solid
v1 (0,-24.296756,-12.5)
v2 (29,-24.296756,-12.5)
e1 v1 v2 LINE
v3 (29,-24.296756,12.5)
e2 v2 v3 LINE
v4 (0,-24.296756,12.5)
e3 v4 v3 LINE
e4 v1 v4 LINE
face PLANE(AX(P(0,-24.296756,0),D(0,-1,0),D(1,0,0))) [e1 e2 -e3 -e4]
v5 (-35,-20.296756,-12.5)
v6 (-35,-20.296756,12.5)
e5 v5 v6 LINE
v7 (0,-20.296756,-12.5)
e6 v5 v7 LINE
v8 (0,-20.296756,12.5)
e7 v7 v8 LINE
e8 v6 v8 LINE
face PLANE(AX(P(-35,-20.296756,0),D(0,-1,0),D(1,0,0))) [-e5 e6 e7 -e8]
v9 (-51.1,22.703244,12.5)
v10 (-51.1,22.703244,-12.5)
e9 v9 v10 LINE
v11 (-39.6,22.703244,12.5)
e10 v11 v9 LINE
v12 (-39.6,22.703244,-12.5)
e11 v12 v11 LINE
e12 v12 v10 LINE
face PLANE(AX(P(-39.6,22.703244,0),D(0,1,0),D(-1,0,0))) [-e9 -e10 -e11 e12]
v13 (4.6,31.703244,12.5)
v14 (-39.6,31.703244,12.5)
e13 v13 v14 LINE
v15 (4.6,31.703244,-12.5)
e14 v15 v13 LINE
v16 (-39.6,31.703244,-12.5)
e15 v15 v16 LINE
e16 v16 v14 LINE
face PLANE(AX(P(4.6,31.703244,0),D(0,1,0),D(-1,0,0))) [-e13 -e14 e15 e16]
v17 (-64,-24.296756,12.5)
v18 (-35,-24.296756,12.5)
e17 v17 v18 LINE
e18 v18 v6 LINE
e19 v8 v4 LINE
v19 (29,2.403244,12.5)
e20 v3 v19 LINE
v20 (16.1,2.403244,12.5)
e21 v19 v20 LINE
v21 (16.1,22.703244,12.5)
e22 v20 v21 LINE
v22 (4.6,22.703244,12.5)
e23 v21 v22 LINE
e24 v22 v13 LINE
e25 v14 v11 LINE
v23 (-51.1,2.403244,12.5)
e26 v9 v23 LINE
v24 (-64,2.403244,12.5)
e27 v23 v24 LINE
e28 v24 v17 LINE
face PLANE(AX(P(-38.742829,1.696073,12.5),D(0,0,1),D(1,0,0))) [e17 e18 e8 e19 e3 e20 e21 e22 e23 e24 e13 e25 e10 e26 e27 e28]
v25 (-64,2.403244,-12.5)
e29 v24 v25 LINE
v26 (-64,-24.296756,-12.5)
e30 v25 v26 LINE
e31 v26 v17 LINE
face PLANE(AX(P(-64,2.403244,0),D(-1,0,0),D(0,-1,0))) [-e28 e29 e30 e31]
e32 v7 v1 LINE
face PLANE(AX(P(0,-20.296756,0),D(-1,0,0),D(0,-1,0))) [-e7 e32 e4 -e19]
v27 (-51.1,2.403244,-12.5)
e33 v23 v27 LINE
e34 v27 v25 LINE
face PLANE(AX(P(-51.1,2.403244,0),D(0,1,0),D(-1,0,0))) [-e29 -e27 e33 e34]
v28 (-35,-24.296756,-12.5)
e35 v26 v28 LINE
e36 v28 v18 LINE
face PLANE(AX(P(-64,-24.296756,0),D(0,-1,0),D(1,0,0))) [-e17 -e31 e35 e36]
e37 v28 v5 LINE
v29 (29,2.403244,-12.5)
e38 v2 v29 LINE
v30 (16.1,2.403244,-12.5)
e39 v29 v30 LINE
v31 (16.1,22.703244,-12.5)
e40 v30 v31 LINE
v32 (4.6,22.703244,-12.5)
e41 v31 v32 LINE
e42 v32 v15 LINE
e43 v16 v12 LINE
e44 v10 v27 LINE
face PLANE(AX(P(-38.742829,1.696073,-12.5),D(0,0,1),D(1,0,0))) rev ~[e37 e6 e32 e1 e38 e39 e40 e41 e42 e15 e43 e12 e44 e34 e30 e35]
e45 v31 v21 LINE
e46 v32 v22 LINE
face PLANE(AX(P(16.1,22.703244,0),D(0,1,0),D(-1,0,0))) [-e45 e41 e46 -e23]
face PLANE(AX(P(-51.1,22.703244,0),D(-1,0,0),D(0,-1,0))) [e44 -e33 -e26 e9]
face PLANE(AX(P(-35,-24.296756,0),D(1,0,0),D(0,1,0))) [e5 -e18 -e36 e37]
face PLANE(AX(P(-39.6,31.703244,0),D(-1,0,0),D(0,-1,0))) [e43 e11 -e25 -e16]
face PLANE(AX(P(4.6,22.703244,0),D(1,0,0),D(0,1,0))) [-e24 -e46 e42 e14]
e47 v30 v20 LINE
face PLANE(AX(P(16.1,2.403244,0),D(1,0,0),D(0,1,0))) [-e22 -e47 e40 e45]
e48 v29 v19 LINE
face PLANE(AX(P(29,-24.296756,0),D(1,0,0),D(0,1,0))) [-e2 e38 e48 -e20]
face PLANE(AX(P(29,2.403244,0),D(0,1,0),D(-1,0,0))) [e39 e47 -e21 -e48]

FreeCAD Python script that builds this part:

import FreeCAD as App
import Part
import Sketcher


def add_polygon(sketch, points):
    """Adds a closed chain of lines whose ends are joined by coincident constraints."""
    first, n = sketch.GeometryCount, len(points)
    for a, b in zip(points, points[1:] + points[:1]):
        sketch.addGeometry(Part.LineSegment(App.Vector(*a, 0), App.Vector(*b, 0)), False)
    for i in range(n):
        sketch.addConstraint(Sketcher.Constraint("Coincident", first + i, 2, first + (i + 1) % n, 1))

doc = App.newDocument("Part")
body = doc.addObject("PartDesign::Body", "Body")

# Sketch on XY plane
sketch1 = body.newObject("Sketcher::SketchObject", "Sketch")
sketch1.AttachmentSupport = (doc.getObject("XY_Plane"), [""])
sketch1.MapMode = "FlatFace"
add_polygon(sketch1, [(-64, 2.403244), (-64, -24.296756), (-35, -24.296756), (-35, -20.296756), (0, -20.296756), (0, -24.296756), (29, -24.296756), (29, 2.403244), (16.1, 2.403244), (16.1, 22.703244), (4.6, 22.703244), (4.6, 31.703244), (-39.6, 31.703244), (-39.6, 22.703244), (-51.1, 22.703244), (-51.1, 2.403244)])  # lines 0-15
sketch1.addConstraint([
    Sketcher.Constraint("Vertical", 0),
    Sketcher.Constraint("Horizontal", 1),
    Sketcher.Constraint("Vertical", 2),
    Sketcher.Constraint("Horizontal", 3),
    Sketcher.Constraint("Vertical", 4),
    Sketcher.Constraint("Horizontal", 5),
    Sketcher.Constraint("Vertical", 6),
    Sketcher.Constraint("Horizontal", 7),
    Sketcher.Constraint("Vertical", 8),
    Sketcher.Constraint("Horizontal", 9),
    Sketcher.Constraint("Vertical", 10),
    Sketcher.Constraint("Horizontal", 11),
    Sketcher.Constraint("Vertical", 12),
    Sketcher.Constraint("Horizontal", 13),
    Sketcher.Constraint("Vertical", 14),
    Sketcher.Constraint("Horizontal", 15),
    Sketcher.Constraint("PointOnObject", 3, 2, -2),
    Sketcher.Constraint("Horizontal", 1, 2, 4, 2),
    Sketcher.Constraint("Horizontal", 9, 2, 12, 2),
    Sketcher.Constraint("Horizontal", 7, 2, 14, 2),
    Sketcher.Constraint("Equal", 1, 5),
    Sketcher.Constraint("Equal", 9, 13),
    Sketcher.Constraint("Equal", 7, 15),
    Sketcher.Constraint("DistanceX", 1, 1, 1, 2, 29.0),
    Sketcher.Constraint("DistanceX", 3, 1, 3, 2, 35.0),
    Sketcher.Constraint("DistanceY", 2, 1, 2, 2, 4.0),
    Sketcher.Constraint("DistanceY", 10, 1, 10, 2, 9.0),
    Sketcher.Constraint("DistanceX", 7, 2, 7, 1, 12.9),
    Sketcher.Constraint("DistanceX", 9, 2, 9, 1, 11.5),
    Sketcher.Constraint("DistanceY", 0, 2, 0, 1, 26.7),
    Sketcher.Constraint("DistanceY", 8, 1, 8, 2, 20.3),
    Sketcher.Constraint("DistanceY", 0, 2, -1, 1, 24.296756),
])
pad1 = body.newObject("PartDesign::Pad", "Pad")
pad1.Profile = sketch1
pad1.Length = 25
pad1.Midplane = True

doc.recompute()
